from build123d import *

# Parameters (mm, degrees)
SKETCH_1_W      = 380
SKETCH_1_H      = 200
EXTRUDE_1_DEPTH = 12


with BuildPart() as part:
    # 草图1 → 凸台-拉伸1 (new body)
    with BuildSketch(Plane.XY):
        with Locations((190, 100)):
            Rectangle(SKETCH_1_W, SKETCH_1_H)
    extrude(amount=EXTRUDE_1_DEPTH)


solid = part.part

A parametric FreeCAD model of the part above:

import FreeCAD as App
import Part
import Sketcher

V = App.Vector

doc = App.newDocument("Part")
params = doc.addObject("Spreadsheet::Sheet", "Params")
for row, (alias, value) in enumerate([
    ("sketch1_width", "380 mm"),
    ("sketch1_height", "200 mm"),
    ("pad1_length", "12 mm"),
], start=1):
    params.set(f"A{row}", alias)
    params.set(f"B{row}", "=" + value)
    params.setAlias(f"B{row}", alias)

body = doc.addObject("PartDesign::Body", "Body")

sketch1 = body.newObject("Sketcher::SketchObject", "Sketch")
sketch1.AttachmentSupport = (doc.getObject("XY_Plane"), [""])
sketch1.MapMode = "FlatFace"
sketch1.addGeometry([
    Part.LineSegment(V(0, 200, 0), V(0, 0, 0)),
    Part.LineSegment(V(0, 0, 0), V(380, 0, 0)),
    Part.LineSegment(V(380, 0, 0), V(380, 200, 0)),
    Part.LineSegment(V(380, 200, 0), V(0, 200, 0)),
], False)
sketch1.addConstraint([
    Sketcher.Constraint("Coincident", 0, 2, 1, 1),
    Sketcher.Constraint("Coincident", 1, 2, 2, 1),
    Sketcher.Constraint("Coincident", 2, 2, 3, 1),
    Sketcher.Constraint("Coincident", 3, 2, 0, 1),
    Sketcher.Constraint("Vertical", 0),
    Sketcher.Constraint("Horizontal", 1),
    Sketcher.Constraint("Vertical", 2),
    Sketcher.Constraint("Horizontal", 3),
    Sketcher.Constraint("Coincident", 0, 2, -1, 1),
    Sketcher.Constraint("DistanceX", 1, 1, 1, 2, 380.0),
    Sketcher.Constraint("DistanceY", 0, 2, 0, 1, 200.0),
])
sketch1.setExpression("Constraints[9]", "Params.sketch1_width")
sketch1.setExpression("Constraints[10]", "Params.sketch1_height")
pad1 = body.newObject("PartDesign::Pad", "Pad")
pad1.Profile = sketch1
pad1.setExpression("Length", "Params.pad1_length")

doc.recompute()
